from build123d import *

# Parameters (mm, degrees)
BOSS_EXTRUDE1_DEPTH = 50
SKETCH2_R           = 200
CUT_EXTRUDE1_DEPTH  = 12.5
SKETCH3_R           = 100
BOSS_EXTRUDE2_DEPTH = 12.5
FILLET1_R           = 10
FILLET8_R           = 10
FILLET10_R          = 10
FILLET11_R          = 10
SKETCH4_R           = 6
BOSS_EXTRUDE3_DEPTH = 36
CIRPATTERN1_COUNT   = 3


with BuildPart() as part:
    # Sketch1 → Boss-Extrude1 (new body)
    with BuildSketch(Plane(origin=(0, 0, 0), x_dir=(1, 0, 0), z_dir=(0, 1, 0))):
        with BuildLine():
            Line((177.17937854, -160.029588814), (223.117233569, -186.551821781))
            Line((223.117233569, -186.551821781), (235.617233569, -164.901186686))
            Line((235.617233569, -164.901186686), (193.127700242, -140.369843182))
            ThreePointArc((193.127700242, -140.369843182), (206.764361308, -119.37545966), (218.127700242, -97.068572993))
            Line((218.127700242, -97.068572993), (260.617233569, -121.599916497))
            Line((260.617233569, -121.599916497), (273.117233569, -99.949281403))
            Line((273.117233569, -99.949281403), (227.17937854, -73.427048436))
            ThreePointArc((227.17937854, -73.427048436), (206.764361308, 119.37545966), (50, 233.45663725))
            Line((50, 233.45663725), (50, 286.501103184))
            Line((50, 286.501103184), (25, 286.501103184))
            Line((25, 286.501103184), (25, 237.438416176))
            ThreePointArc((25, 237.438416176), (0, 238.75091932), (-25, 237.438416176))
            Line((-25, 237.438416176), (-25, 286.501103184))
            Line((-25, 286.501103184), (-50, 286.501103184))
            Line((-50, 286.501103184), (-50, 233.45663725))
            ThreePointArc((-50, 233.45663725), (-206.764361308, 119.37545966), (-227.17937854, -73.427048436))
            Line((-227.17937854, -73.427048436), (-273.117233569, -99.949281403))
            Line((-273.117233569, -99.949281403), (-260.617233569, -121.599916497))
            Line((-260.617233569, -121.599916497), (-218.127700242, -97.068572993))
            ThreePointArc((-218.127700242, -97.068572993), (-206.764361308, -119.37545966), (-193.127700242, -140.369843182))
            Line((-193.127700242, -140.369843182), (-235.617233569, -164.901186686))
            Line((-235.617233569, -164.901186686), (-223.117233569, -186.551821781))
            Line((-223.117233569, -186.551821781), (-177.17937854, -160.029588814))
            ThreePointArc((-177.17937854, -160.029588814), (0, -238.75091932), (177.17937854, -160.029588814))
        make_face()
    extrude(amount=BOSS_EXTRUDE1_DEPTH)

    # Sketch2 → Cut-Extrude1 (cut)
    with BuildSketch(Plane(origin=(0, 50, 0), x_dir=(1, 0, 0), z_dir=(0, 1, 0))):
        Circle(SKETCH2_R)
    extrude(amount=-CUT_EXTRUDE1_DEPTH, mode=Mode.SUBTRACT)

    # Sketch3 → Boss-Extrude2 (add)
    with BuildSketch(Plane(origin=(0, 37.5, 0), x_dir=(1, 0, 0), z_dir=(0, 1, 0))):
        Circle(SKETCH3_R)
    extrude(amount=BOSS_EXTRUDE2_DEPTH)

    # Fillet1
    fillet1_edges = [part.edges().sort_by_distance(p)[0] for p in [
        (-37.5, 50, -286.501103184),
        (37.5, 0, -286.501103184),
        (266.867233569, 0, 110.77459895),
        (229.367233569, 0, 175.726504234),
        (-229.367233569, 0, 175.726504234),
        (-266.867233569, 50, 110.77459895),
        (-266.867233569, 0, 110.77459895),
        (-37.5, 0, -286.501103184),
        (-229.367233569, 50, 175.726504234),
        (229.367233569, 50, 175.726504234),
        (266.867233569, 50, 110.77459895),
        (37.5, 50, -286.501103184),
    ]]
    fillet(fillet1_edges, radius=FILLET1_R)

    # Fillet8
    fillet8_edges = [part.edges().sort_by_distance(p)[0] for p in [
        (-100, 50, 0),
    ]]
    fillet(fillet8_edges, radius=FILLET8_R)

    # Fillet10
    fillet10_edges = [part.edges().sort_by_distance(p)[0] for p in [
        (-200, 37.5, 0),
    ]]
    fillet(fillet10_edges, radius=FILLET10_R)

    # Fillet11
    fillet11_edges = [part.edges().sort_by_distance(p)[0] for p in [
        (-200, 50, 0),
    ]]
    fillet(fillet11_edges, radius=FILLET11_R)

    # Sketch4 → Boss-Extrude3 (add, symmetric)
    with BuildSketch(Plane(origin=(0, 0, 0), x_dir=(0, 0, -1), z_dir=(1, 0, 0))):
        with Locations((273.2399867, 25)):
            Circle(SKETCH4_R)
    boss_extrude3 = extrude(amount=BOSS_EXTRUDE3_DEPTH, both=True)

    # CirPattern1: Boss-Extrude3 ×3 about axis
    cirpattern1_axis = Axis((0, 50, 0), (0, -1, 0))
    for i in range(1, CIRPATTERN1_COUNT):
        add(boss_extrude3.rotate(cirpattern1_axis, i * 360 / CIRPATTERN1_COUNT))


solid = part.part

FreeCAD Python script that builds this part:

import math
import FreeCAD as App
import Part
import Sketcher
from FreeCAD import Vector
Q = App.Units.Quantity


def edges_at(feature, points):
    """Names of the edges that pass closest to the given points."""
    edges = feature.Shape.Edges
    near = lambda p: min(range(len(edges)), key=lambda i: edges[i].distToShape(Part.Vertex(*p))[0])
    return sorted({f"Edge{near(p) + 1}" for p in points})

doc = App.newDocument("Part")
body = doc.addObject("PartDesign::Body", "Body")

# Sketch on XZ plane
sketch1 = doc.addObject("Sketcher::SketchObject", "Sketch")
body.addObject(sketch1)
sketch1.AttachmentSupport = (doc.XZ_Plane, [""])
sketch1.MapMode = "FlatFace"
sketch1.addGeometry([
    Part.LineSegment(Vector(177.179379, 160.029589, 0), Vector(223.117234, 186.551822, 0)),  # 0
    Part.LineSegment(Vector(223.117234, 186.551822, 0), Vector(235.617234, 164.901187, 0)),  # 1
    Part.LineSegment(Vector(235.617234, 164.901187, 0), Vector(193.1277, 140.369843, 0)),  # 2
    Part.ArcOfCircle(Part.Circle(Vector(0, 0, 0), Vector(0, 0, 1), 238.750919), math.radians(23.989447), math.radians(36.010553)),  # 3
    Part.LineSegment(Vector(218.1277, 97.068573, 0), Vector(260.617234, 121.599916, 0)),  # 4
    Part.LineSegment(Vector(260.617234, 121.599916, 0), Vector(273.117234, 99.949281, 0)),  # 5
    Part.LineSegment(Vector(273.117234, 99.949281, 0), Vector(227.179379, 73.427048, 0)),  # 6
    Part.ArcOfCircle(Part.Circle(Vector(0, 0, 0), Vector(0, 0, 1), 238.750919), math.radians(-77.911443), math.radians(17.911443)),  # 7
    Part.LineSegment(Vector(50, -233.456637, 0), Vector(50, -286.501103, 0)),  # 8
    Part.LineSegment(Vector(50, -286.501103, 0), Vector(25, -286.501103, 0)),  # 9
    Part.LineSegment(Vector(25, -286.501103, 0), Vector(25, -237.438416, 0)),  # 10
    Part.ArcOfCircle(Part.Circle(Vector(0, 0, 0), Vector(0, 0, 1), 238.750919), math.radians(-96.010553), math.radians(-83.989447)),  # 11
    Part.LineSegment(Vector(-25, -237.438416, 0), Vector(-25, -286.501103, 0)),  # 12
    Part.LineSegment(Vector(-25, -286.501103, 0), Vector(-50, -286.501103, 0)),  # 13
    Part.LineSegment(Vector(-50, -286.501103, 0), Vector(-50, -233.456637, 0)),  # 14
    Part.ArcOfCircle(Part.Circle(Vector(0, 0, 0), Vector(0, 0, 1), 238.750919), math.radians(162.088557), math.radians(257.911443)),  # 15
    Part.LineSegment(Vector(-227.179379, 73.427048, 0), Vector(-273.117234, 99.949281, 0)),  # 16
    Part.LineSegment(Vector(-273.117234, 99.949281, 0), Vector(-260.617234, 121.599916, 0)),  # 17
    Part.LineSegment(Vector(-260.617234, 121.599916, 0), Vector(-218.1277, 97.068573, 0)),  # 18
    Part.ArcOfCircle(Part.Circle(Vector(0, 0, 0), Vector(0, 0, 1), 238.750919), math.radians(143.989447), math.radians(156.010553)),  # 19
    Part.LineSegment(Vector(-193.1277, 140.369843, 0), Vector(-235.617234, 164.901187, 0)),  # 20
    Part.LineSegment(Vector(-235.617234, 164.901187, 0), Vector(-223.117234, 186.551822, 0)),  # 21
    Part.LineSegment(Vector(-223.117234, 186.551822, 0), Vector(-177.179379, 160.029589, 0)),  # 22
    Part.ArcOfCircle(Part.Circle(Vector(0, 0, 0), Vector(0, 0, 1), 238.750919), math.radians(42.088557), math.radians(137.911443)),  # 23
], False)
sketch1.addConstraint([
    Sketcher.Constraint("Coincident", 0, 2, 1, 1),
    Sketcher.Constraint("Coincident", 1, 2, 2, 1),
    Sketcher.Constraint("Coincident", 2, 2, 3, 2),
    Sketcher.Constraint("Coincident", 3, 1, 4, 1),
    Sketcher.Constraint("Coincident", 4, 2, 5, 1),
    Sketcher.Constraint("Coincident", 5, 2, 6, 1),
    Sketcher.Constraint("Coincident", 6, 2, 7, 2),
    Sketcher.Constraint("Coincident", 7, 1, 8, 1),
    Sketcher.Constraint("Coincident", 8, 2, 9, 1),
    Sketcher.Constraint("Coincident", 9, 2, 10, 1),
    Sketcher.Constraint("Coincident", 10, 2, 11, 2),
    Sketcher.Constraint("Coincident", 11, 1, 12, 1),
    Sketcher.Constraint("Coincident", 12, 2, 13, 1),
    Sketcher.Constraint("Coincident", 13, 2, 14, 1),
    Sketcher.Constraint("Coincident", 14, 2, 15, 2),
    Sketcher.Constraint("Coincident", 15, 1, 16, 1),
    Sketcher.Constraint("Coincident", 16, 2, 17, 1),
    Sketcher.Constraint("Coincident", 17, 2, 18, 1),
    Sketcher.Constraint("Coincident", 18, 2, 19, 2),
    Sketcher.Constraint("Coincident", 19, 1, 20, 1),
    Sketcher.Constraint("Coincident", 20, 2, 21, 1),
    Sketcher.Constraint("Coincident", 21, 2, 22, 1),
    Sketcher.Constraint("Coincident", 22, 2, 23, 2),
    Sketcher.Constraint("Coincident", 23, 1, 0, 1),
    Sketcher.Constraint("Vertical", 8),
    Sketcher.Constraint("Horizontal", 9),
    Sketcher.Constraint("Vertical", 10),
    Sketcher.Constraint("Vertical", 12),
    Sketcher.Constraint("Horizontal", 13),
    Sketcher.Constraint("Vertical", 14),
    Sketcher.Constraint("Coincident", 3, 3, -1, 1),
    Sketcher.Constraint("Coincident", 7, 3, -1, 1),
    Sketcher.Constraint("Coincident", 11, 3, -1, 1),
    Sketcher.Constraint("Coincident", 15, 3, -1, 1),
    Sketcher.Constraint("Coincident", 19, 3, -1, 1),
    Sketcher.Constraint("Coincident", 23, 3, -1, 1),
    Sketcher.Constraint("Equal", 3, 7),
    Sketcher.Constraint("Equal", 7, 11),
    Sketcher.Constraint("Equal", 11, 15),
    Sketcher.Constraint("Equal", 15, 19),
    Sketcher.Constraint("Equal", 19, 23),
    Sketcher.Constraint("Symmetric", 9, 2, 12, 2, -2),
    Sketcher.Constraint("Symmetric", 5, 2, 16, 2, -2),
    Sketcher.Constraint("Symmetric", 4, 2, 17, 2, -2),
    Sketcher.Constraint("Symmetric", 1, 2, 20, 2, -2),
    Sketcher.Constraint("Symmetric", 0, 2, 21, 2, -2),
    Sketcher.Constraint("Perpendicular", 0, 1),
    Sketcher.Constraint("Perpendicular", 1, 2),
    Sketcher.Constraint("Parallel", 2, 4),
    Sketcher.Constraint("Perpendicular", 4, 5),
    Sketcher.Constraint("Perpendicular", 5, 6),
    Sketcher.Constraint("Perpendicular", 16, 17),
    Sketcher.Constraint("Perpendicular", 17, 18),
    Sketcher.Constraint("Parallel", 18, 20),
    Sketcher.Constraint("Perpendicular", 21, 22),
    Sketcher.Constraint("Horizontal", 7, 1, 14, 2),
    Sketcher.Constraint("Equal", 2, 4),
    Sketcher.Constraint("Equal", 1, 5),
    Sketcher.Constraint("Equal", 0, 6),
    Sketcher.Constraint("DistanceX", 9, 2, 9, 1, 25.0),
    Sketcher.Constraint("Angle", 0, Q("30 deg")),
    Sketcher.Constraint("Distance", 1, 25.0),
    Sketcher.Constraint("DistanceX", -1, 1, 8, 2, 50.0),
    Sketcher.Constraint("DistanceX", 2, 2, 3, 1, 25.0),
    Sketcher.Constraint("Radius", 3, 238.750919),
    Sketcher.Constraint("DistanceY", 8, 2, 8, 1, 53.044466),
    Sketcher.Constraint("DistanceY", -1, 1, 0, 2, 186.551822),
])
pad1 = doc.addObject("PartDesign::Pad", "Pad")
body.addObject(pad1)
pad1.Profile = sketch1
pad1.Length = 50
pad1.Reversed = True

# Sketch on XZ plane
sketch2 = doc.addObject("Sketcher::SketchObject", "Sketch001")
body.addObject(sketch2)
sketch2.AttachmentSupport = (doc.XZ_Plane, [""])
sketch2.MapMode = "FlatFace"
sketch2.AttachmentOffset = App.Placement(Vector(0, 0, -50), App.Rotation())
sketch2.addGeometry(Part.Circle(Vector(0, 0, 0), Vector(0, 0, 1), 200), False)
sketch2.addConstraint([
    Sketcher.Constraint("Coincident", 0, 3, -1, 1),
    Sketcher.Constraint("Diameter", 0, 400.0),
])
pocket1 = doc.addObject("PartDesign::Pocket", "Pocket")
body.addObject(pocket1)
pocket1.Profile = sketch2
pocket1.Length = 12.5
pocket1.Reversed = True

# Sketch on XZ plane
sketch3 = doc.addObject("Sketcher::SketchObject", "Sketch002")
body.addObject(sketch3)
sketch3.AttachmentSupport = (doc.XZ_Plane, [""])
sketch3.MapMode = "FlatFace"
sketch3.AttachmentOffset = App.Placement(Vector(0, 0, -37.5), App.Rotation())
sketch3.addGeometry(Part.Circle(Vector(0, 0, 0), Vector(0, 0, 1), 100), False)
sketch3.addConstraint([
    Sketcher.Constraint("Coincident", 0, 3, -1, 1),
    Sketcher.Constraint("Diameter", 0, 200.0),
])
pad2 = doc.addObject("PartDesign::Pad", "Pad001")
body.addObject(pad2)
pad2.Profile = sketch3
pad2.Length = 12.5
pad2.Reversed = True
doc.recompute()

fillet = doc.addObject("PartDesign::Fillet", "Fillet")
body.addObject(fillet)
fillet.Base = (pad2, edges_at(pad2, [
    (-37.5, 50, -286.501),
    (37.5, 0, -286.501),
    (266.867, 0, 110.775),
    (229.367, 0, 175.727),
    (-229.367, 0, 175.727),
    (-266.867, 50, 110.775),
    (-266.867, 0, 110.775),
    (-37.5, 0, -286.501),
    (-229.367, 50, 175.727),
    (229.367, 50, 175.727),
    (266.867, 50, 110.775),
    (37.5, 50, -286.501),
]))
fillet.Radius = 10
doc.recompute()

fillet2 = doc.addObject("PartDesign::Fillet", "Fillet001")
body.addObject(fillet2)
fillet2.Base = (fillet, edges_at(fillet, [(-100, 50, 0)]))
fillet2.Radius = 10
doc.recompute()

fillet3 = doc.addObject("PartDesign::Fillet", "Fillet002")
body.addObject(fillet3)
fillet3.Base = (fillet2, edges_at(fillet2, [(-200, 37.5, 0)]))
fillet3.Radius = 10
doc.recompute()

fillet4 = doc.addObject("PartDesign::Fillet", "Fillet003")
body.addObject(fillet4)
fillet4.Base = (fillet3, edges_at(fillet3, [(-200, 50, 0)]))
fillet4.Radius = 10

# Sketch on YZ plane
sketch4 = doc.addObject("Sketcher::SketchObject", "Sketch003")
body.addObject(sketch4)
sketch4.AttachmentSupport = (doc.YZ_Plane, [""])
sketch4.MapMode = "FlatFace"
sketch4.addGeometry(Part.Circle(Vector(25, -273.239987, 0), Vector(0, 0, 1), 6), False)
sketch4.addConstraint([
    Sketcher.Constraint("Diameter", 0, 12.0),
    Sketcher.Constraint("DistanceX", -1, 1, 0, 3, 25.0),
    Sketcher.Constraint("DistanceY", 0, 3, -1, 1, 273.239987),
])
pad3 = doc.addObject("PartDesign::Pad", "Pad002")
body.addObject(pad3)
pad3.Profile = sketch4
pad3.Length = 72
pad3.Midplane = True
doc.recompute()

polarpattern = doc.addObject("PartDesign::PolarPattern", "PolarPattern")
body.addObject(polarpattern)
polarpattern.Originals = [pad3]
polarpattern.Axis = (doc.Y_Axis, [""])
polarpattern.Angle = 360
polarpattern.Occurrences = 3
body.Tip = polarpattern

doc.recompute()
